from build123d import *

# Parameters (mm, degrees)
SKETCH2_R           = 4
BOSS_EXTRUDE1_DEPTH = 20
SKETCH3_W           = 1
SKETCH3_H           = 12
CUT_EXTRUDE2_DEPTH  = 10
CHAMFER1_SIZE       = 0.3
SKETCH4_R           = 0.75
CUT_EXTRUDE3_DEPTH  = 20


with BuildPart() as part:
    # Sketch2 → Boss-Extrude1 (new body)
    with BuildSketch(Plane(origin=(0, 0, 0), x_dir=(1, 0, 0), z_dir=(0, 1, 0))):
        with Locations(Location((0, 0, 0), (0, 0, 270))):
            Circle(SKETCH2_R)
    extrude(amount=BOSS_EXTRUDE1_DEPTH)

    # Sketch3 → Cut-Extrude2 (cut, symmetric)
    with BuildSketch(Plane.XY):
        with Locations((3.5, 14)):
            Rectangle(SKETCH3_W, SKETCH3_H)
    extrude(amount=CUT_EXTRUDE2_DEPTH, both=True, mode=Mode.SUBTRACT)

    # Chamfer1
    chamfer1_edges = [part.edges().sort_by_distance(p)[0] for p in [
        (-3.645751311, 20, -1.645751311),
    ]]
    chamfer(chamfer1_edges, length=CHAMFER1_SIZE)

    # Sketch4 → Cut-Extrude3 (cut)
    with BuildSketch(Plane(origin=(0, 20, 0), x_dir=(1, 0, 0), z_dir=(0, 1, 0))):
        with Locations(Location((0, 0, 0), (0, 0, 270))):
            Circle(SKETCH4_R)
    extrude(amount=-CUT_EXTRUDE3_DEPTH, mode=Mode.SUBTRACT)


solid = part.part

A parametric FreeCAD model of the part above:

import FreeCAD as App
import Part
import Sketcher

V = App.Vector
Q = App.Units.Quantity


def edges_at(feature, points):
    """Names of the edges that pass closest to the given points."""
    edges = feature.Shape.Edges
    near = lambda p: min(range(len(edges)), key=lambda i: edges[i].distToShape(Part.Vertex(*p))[0])
    return sorted({f"Edge{near(p) + 1}" for p in points})


def add_polygon(sketch, points):
    """Adds a closed chain of lines whose ends are joined by coincident constraints."""
    first, n = sketch.GeometryCount, len(points)
    for a, b in zip(points, points[1:] + points[:1]):
        sketch.addGeometry(Part.LineSegment(App.Vector(*a, 0), App.Vector(*b, 0)), False)
    for i in range(n):
        sketch.addConstraint(Sketcher.Constraint("Coincident", first + i, 2, first + (i + 1) % n, 1))

doc = App.newDocument("Part")
body = doc.addObject("PartDesign::Body", "Body")

# Sketch on XZ plane
sketch1 = body.newObject("Sketcher::SketchObject", "Sketch")
sketch1.AttachmentSupport = (doc.getObject("XZ_Plane"), [""])
sketch1.MapMode = "FlatFace"
sketch1.addGeometry(Part.Circle(V(0, 0, 0), V(0, 0, 1), 4), False)
sketch1.addConstraint([
    Sketcher.Constraint("Coincident", 0, 3, -1, 1),
    Sketcher.Constraint("Diameter", 0, Q("8 mm")),
])
pad1 = body.newObject("PartDesign::Pad", "Pad")
pad1.Profile = sketch1
pad1.Length = 20
pad1.Reversed = True

# Sketch on XY plane
sketch2 = body.newObject("Sketcher::SketchObject", "Sketch001")
sketch2.AttachmentSupport = (doc.getObject("XY_Plane"), [""])
sketch2.MapMode = "FlatFace"
add_polygon(sketch2, [(3, 20), (3, 8), (4, 8), (4, 20)])  # lines 0-3
sketch2.addConstraint([
    Sketcher.Constraint("Vertical", 0),
    Sketcher.Constraint("Horizontal", 1),
    Sketcher.Constraint("Vertical", 2),
    Sketcher.Constraint("Horizontal", 3),
    Sketcher.Constraint("DistanceX", 1, 1, 1, 2, Q("1 mm")),
    Sketcher.Constraint("DistanceY", 0, 2, 0, 1, Q("12 mm")),
    Sketcher.Constraint("DistanceX", -1, 1, 0, 2, Q("3 mm")),
    Sketcher.Constraint("DistanceY", -1, 1, 0, 2, Q("8 mm")),
])
pocket1 = body.newObject("PartDesign::Pocket", "Pocket")
pocket1.Profile = sketch2
pocket1.Length = 20
pocket1.Midplane = True
doc.recompute()

chamfer = body.newObject("PartDesign::Chamfer", "Chamfer")
chamfer.Base = (pocket1, edges_at(pocket1, [(-3.646, 20, -1.646)]))
chamfer.Size = 0.3

# Sketch on XZ plane
sketch3 = body.newObject("Sketcher::SketchObject", "Sketch002")
sketch3.AttachmentSupport = (doc.getObject("XZ_Plane"), [""])
sketch3.MapMode = "FlatFace"
sketch3.AttachmentOffset = App.Placement(V(0, 0, -20), App.Rotation())
sketch3.addGeometry(Part.Circle(V(0, 0, 0), V(0, 0, 1), 0.75), False)
sketch3.addConstraint([
    Sketcher.Constraint("Coincident", 0, 3, -1, 1),
    Sketcher.Constraint("Diameter", 0, Q("1.5 mm")),
])
pocket2 = body.newObject("PartDesign::Pocket", "Pocket001")
pocket2.Profile = sketch3
pocket2.Length = 20
pocket2.Reversed = True

doc.recompute()
